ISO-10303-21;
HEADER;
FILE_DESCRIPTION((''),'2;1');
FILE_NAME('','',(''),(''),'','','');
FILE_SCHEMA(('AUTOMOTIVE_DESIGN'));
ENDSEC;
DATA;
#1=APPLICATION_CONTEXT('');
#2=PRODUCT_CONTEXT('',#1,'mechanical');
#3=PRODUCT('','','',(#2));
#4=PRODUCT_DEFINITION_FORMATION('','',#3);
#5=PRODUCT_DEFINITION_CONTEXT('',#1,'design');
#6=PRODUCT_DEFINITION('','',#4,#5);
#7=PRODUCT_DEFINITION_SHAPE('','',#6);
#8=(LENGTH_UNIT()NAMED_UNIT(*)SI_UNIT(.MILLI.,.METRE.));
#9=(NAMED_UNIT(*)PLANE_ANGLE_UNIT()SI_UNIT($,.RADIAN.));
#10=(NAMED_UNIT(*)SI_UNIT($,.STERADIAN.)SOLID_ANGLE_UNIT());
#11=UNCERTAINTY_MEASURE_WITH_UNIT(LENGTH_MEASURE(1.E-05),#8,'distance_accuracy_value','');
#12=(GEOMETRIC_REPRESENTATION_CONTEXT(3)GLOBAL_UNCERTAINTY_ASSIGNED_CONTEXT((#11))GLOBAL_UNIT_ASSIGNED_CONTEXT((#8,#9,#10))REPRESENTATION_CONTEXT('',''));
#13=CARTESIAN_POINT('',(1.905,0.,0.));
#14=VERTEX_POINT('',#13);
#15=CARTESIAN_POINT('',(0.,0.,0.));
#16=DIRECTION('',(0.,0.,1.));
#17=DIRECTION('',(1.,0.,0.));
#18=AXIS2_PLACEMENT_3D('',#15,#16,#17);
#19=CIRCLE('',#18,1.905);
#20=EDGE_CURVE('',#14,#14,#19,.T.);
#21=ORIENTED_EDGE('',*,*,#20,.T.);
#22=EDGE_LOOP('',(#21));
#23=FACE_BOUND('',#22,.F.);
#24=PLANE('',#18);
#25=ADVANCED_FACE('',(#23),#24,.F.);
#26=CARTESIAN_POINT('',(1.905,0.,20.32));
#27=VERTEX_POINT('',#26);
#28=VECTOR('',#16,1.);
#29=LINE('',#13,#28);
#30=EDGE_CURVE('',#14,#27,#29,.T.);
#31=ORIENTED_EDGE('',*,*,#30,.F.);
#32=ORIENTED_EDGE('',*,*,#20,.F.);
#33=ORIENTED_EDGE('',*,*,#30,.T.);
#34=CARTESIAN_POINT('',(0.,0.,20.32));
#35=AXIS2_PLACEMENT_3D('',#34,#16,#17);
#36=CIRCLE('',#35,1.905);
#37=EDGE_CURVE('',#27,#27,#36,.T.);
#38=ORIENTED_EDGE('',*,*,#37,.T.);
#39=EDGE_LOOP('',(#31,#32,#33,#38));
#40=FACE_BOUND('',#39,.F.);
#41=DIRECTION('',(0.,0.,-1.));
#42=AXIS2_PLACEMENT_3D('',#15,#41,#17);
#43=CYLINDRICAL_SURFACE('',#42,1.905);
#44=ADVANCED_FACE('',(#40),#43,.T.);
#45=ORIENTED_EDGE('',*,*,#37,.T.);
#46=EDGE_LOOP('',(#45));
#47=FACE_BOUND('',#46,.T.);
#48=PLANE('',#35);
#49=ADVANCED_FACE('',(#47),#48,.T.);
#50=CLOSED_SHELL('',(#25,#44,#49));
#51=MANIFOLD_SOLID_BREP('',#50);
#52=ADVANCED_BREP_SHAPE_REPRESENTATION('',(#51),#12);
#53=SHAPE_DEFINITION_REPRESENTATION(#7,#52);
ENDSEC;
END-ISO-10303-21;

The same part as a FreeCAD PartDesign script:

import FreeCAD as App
import Part
import Sketcher

V = App.Vector
Q = App.Units.Quantity

doc = App.newDocument("Part")
body = doc.addObject("PartDesign::Body", "Body")

# Sketch on XY plane
sketch1 = body.newObject("Sketcher::SketchObject", "Sketch")
sketch1.AttachmentSupport = (doc.getObject("XY_Plane"), [""])
sketch1.MapMode = "FlatFace"
sketch1.addGeometry(Part.Circle(V(0, 0, 0), V(0, 0, 1), 1.9), False)
sketch1.addConstraint(Sketcher.Constraint("Coincident", 0, 3, -1, 1))
sketch1.addConstraint(Sketcher.Constraint("Diameter", 0, Q("0.15 in")))
pad1 = body.newObject("PartDesign::Pad", "Pad")
pad1.Profile = sketch1
pad1.Length = Q("0.8 in")

doc.recompute()
